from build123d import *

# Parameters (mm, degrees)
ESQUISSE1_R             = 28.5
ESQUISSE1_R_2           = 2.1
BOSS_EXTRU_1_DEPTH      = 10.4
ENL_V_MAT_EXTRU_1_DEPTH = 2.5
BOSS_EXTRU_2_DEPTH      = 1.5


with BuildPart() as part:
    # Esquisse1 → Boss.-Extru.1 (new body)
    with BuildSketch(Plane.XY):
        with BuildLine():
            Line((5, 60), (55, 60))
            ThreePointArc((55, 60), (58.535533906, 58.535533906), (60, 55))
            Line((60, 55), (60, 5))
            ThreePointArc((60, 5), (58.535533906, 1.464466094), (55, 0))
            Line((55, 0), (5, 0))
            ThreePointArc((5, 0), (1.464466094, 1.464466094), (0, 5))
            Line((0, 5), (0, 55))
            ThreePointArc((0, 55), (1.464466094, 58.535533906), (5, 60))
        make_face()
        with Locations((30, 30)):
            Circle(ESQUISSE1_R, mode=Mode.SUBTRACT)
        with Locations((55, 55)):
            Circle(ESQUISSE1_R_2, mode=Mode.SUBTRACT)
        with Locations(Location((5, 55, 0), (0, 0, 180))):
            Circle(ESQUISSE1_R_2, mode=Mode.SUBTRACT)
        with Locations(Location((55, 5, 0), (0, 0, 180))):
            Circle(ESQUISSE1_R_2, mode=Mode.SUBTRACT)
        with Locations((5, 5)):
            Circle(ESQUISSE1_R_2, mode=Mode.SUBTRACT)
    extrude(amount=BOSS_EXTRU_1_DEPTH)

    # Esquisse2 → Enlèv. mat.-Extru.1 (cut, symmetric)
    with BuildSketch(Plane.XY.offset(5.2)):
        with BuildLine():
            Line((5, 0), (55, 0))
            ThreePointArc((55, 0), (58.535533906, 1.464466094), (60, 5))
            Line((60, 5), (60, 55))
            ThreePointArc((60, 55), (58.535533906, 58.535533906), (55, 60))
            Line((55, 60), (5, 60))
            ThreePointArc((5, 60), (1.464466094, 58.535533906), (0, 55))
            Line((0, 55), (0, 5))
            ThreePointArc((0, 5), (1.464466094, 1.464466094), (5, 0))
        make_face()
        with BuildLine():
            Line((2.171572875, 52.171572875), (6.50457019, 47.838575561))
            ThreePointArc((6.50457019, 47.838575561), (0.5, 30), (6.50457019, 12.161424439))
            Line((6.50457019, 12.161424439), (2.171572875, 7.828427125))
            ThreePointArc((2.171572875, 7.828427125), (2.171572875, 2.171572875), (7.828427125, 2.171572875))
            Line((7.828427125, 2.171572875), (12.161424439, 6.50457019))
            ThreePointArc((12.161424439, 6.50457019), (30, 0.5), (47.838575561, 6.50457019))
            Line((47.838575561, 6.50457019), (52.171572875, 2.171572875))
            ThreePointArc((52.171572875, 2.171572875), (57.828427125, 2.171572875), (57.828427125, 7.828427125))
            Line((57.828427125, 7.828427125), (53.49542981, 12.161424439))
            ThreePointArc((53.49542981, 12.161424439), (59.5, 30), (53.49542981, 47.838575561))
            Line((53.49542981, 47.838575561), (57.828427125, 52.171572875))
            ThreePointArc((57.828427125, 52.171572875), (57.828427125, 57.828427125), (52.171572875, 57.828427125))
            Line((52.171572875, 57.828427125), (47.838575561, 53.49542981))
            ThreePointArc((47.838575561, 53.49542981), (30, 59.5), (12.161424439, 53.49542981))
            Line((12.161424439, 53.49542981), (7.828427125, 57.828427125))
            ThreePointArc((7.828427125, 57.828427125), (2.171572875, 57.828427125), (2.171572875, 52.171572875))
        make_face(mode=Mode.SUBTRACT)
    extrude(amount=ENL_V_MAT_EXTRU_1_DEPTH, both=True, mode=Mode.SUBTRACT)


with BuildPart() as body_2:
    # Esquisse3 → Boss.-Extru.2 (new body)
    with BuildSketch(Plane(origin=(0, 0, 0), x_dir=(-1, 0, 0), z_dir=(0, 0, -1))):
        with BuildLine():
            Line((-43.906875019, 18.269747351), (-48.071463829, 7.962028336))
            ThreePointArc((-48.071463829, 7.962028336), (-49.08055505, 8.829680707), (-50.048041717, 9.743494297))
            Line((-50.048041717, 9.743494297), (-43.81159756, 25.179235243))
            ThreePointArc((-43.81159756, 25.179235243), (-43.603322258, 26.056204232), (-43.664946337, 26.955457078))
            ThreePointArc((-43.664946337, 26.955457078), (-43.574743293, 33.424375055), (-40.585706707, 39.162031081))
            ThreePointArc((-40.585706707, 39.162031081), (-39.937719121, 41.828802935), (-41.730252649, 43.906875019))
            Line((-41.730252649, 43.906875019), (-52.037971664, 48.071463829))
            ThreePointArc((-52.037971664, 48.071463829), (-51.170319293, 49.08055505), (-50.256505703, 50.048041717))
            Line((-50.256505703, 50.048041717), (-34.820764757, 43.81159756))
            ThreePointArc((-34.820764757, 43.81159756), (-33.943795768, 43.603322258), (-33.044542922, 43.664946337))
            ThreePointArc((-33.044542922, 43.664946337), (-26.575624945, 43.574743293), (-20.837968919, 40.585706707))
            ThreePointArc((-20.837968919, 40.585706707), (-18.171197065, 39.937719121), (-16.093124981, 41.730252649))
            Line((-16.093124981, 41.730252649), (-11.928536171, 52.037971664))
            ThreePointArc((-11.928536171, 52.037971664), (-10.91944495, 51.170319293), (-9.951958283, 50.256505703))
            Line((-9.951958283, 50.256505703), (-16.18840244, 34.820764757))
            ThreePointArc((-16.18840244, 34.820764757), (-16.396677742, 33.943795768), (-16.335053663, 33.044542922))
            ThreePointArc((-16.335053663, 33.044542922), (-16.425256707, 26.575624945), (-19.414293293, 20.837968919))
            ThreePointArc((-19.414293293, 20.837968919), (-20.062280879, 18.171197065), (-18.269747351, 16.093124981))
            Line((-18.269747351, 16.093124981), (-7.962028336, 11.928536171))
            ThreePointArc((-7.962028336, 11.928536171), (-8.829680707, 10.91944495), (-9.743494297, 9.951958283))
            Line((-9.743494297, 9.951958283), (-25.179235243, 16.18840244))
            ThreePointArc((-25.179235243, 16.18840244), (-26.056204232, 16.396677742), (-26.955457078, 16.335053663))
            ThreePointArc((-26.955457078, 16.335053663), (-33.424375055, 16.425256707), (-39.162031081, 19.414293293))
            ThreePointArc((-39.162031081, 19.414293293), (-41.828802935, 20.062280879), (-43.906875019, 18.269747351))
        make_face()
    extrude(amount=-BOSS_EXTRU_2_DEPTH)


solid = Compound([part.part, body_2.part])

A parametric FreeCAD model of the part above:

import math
import FreeCAD as App
import Part
import Sketcher
from FreeCAD import Vector
Q = App.Units.Quantity

doc = App.newDocument("Part")
body = doc.addObject("PartDesign::Body", "Body")

sketch1 = body.newObject("Sketcher::SketchObject", "Sketch")
sketch1.AttachmentSupport = (doc.getObject("XY_Plane"), [""])
sketch1.MapMode = "FlatFace"
sketch1.addGeometry([
    Part.LineSegment(Vector(55, 60, 0), Vector(5, 60, 0)),
    Part.ArcOfCircle(Part.Circle(Vector(5, 55, 0), Vector(0, 0, 1), 5), math.radians(90), math.radians(180)),
    Part.LineSegment(Vector(0, 55, 0), Vector(0, 5, 0)),
    Part.ArcOfCircle(Part.Circle(Vector(5, 5, 0), Vector(0, 0, 1), 5), math.radians(180), math.radians(270)),
    Part.LineSegment(Vector(5, 0, 0), Vector(55, 0, 0)),
    Part.ArcOfCircle(Part.Circle(Vector(55, 5, 0), Vector(0, 0, 1), 5), math.radians(-90), math.radians(0)),
    Part.LineSegment(Vector(60, 5, 0), Vector(60, 55, 0)),
    Part.ArcOfCircle(Part.Circle(Vector(55, 55, 0), Vector(0, 0, 1), 5), math.radians(0), math.radians(90)),
    Part.Circle(Vector(55, 5, 0), Vector(0, 0, 1), 2.1),
    Part.Circle(Vector(5, 5, 0), Vector(0, 0, 1), 2.1),
    Part.Circle(Vector(55, 55, 0), Vector(0, 0, 1), 2.1),
    Part.Circle(Vector(30, 30, 0), Vector(0, 0, 1), 28.5),
    Part.Circle(Vector(5, 55, 0), Vector(0, 0, 1), 2.1),
], False)
sketch1.addConstraint([
    Sketcher.Constraint("Tangent", 0, 2, 1, 1),
    Sketcher.Constraint("Tangent", 1, 2, 2, 1),
    Sketcher.Constraint("Tangent", 2, 2, 3, 1),
    Sketcher.Constraint("Tangent", 3, 2, 4, 1),
    Sketcher.Constraint("Tangent", 4, 2, 5, 1),
    Sketcher.Constraint("Tangent", 5, 2, 6, 1),
    Sketcher.Constraint("Tangent", 6, 2, 7, 1),
    Sketcher.Constraint("Tangent", 7, 2, 0, 1),
    Sketcher.Constraint("Horizontal", 0),
    Sketcher.Constraint("Vertical", 2),
    Sketcher.Constraint("Horizontal", 4),
    Sketcher.Constraint("Vertical", 6),
    Sketcher.Constraint("Coincident", 8, 3, 5, 3),
    Sketcher.Constraint("Coincident", 9, 3, 3, 3),
    Sketcher.Constraint("Coincident", 10, 3, 7, 3),
    Sketcher.Constraint("Coincident", 12, 3, 1, 3),
    Sketcher.Constraint("Equal", 1, 3),
    Sketcher.Constraint("Equal", 3, 5),
    Sketcher.Constraint("Equal", 5, 7),
    Sketcher.Constraint("Equal", 8, 9),
    Sketcher.Constraint("Equal", 9, 10),
    Sketcher.Constraint("Equal", 10, 12),
    Sketcher.Constraint("PointOnObject", 1, 2, -2),
    Sketcher.Constraint("PointOnObject", 3, 2, -1),
    Sketcher.Constraint("Equal", 4, 2),
    Sketcher.Constraint("Diameter", 11, 57.0),
    Sketcher.Constraint("Radius", 1, 5.0),
    Sketcher.Constraint("Diameter", 8, 4.2),
    Sketcher.Constraint("DistanceX", 0, 2, 0, 1, 50.0),
    Sketcher.Constraint("DistanceX", -1, 1, 11, 3, 30.0),
    Sketcher.Constraint("DistanceY", -1, 1, 11, 3, 30.0),
])
pad1 = body.newObject("PartDesign::Pad", "Pad")
pad1.Profile = sketch1
pad1.Length = 10.4

sketch2 = body.newObject("Sketcher::SketchObject", "Sketch001")
sketch2.AttachmentSupport = (doc.getObject("XY_Plane"), [""])
sketch2.MapMode = "FlatFace"
sketch2.AttachmentOffset = App.Placement(Vector(0, 0, 5.2), App.Rotation())
sketch2.addGeometry([
    Part.LineSegment(Vector(5, 0, 0), Vector(55, 0, 0)),
    Part.ArcOfCircle(Part.Circle(Vector(55, 5, 0), Vector(0, 0, 1), 5), math.radians(-90), math.radians(0)),
    Part.LineSegment(Vector(60, 5, 0), Vector(60, 55, 0)),
    Part.ArcOfCircle(Part.Circle(Vector(55, 55, 0), Vector(0, 0, 1), 5), math.radians(0), math.radians(90)),
    Part.LineSegment(Vector(55, 60, 0), Vector(5, 60, 0)),
    Part.ArcOfCircle(Part.Circle(Vector(5, 55, 0), Vector(0, 0, 1), 5), math.radians(90), math.radians(180)),
    Part.LineSegment(Vector(0, 55, 0), Vector(0, 5, 0)),
    Part.ArcOfCircle(Part.Circle(Vector(5, 5, 0), Vector(0, 0, 1), 5), math.radians(180), math.radians(270)),
    Part.LineSegment(Vector(6.5, 47.8, 0), Vector(2.2, 52.2, 0)),
    Part.ArcOfCircle(Part.Circle(Vector(5, 55, 0), Vector(0, 0, 1), 4), math.radians(45), math.radians(225)),
    Part.LineSegment(Vector(7.8, 57.8, 0), Vector(12.2, 53.5, 0)),
    Part.ArcOfCircle(Part.Circle(Vector(30, 30, 0), Vector(0, 0, 1), 29.5), math.radians(53), math.radians(127)),
    Part.LineSegment(Vector(47.8, 53.5, 0), Vector(52.2, 57.8, 0)),
    Part.ArcOfCircle(Part.Circle(Vector(55, 55, 0), Vector(0, 0, 1), 4), math.radians(-45), math.radians(135)),
    Part.LineSegment(Vector(57.8, 52.2, 0), Vector(53.5, 47.8, 0)),
    Part.ArcOfCircle(Part.Circle(Vector(30, 30, 0), Vector(0, 0, 1), 29.5), math.radians(-37), math.radians(37)),
    Part.LineSegment(Vector(53.5, 12.2, 0), Vector(57.8, 7.8, 0)),
    Part.ArcOfCircle(Part.Circle(Vector(55, 5, 0), Vector(0, 0, 1), 4), math.radians(-135), math.radians(45)),
    Part.LineSegment(Vector(52.2, 2.2, 0), Vector(47.8, 6.5, 0)),
    Part.ArcOfCircle(Part.Circle(Vector(30, 30, 0), Vector(0, 0, 1), 29.5), math.radians(-127), math.radians(-53)),
    Part.LineSegment(Vector(12.2, 6.5, 0), Vector(7.8, 2.2, 0)),
    Part.ArcOfCircle(Part.Circle(Vector(5, 5, 0), Vector(0, 0, 1), 4), math.radians(135), math.radians(315)),
    Part.LineSegment(Vector(2.2, 7.8, 0), Vector(6.5, 12.2, 0)),
    Part.ArcOfCircle(Part.Circle(Vector(30, 30, 0), Vector(0, 0, 1), 29.5), math.radians(143), math.radians(217)),
], False)
sketch2.addConstraint([
    Sketcher.Constraint("Tangent", 0, 2, 1, 1),
    Sketcher.Constraint("Tangent", 1, 2, 2, 1),
    Sketcher.Constraint("Tangent", 2, 2, 3, 1),
    Sketcher.Constraint("Tangent", 3, 2, 4, 1),
    Sketcher.Constraint("Tangent", 4, 2, 5, 1),
    Sketcher.Constraint("Tangent", 5, 2, 6, 1),
    Sketcher.Constraint("Tangent", 6, 2, 7, 1),
    Sketcher.Constraint("Tangent", 7, 2, 0, 1),
    Sketcher.Constraint("Tangent", 8, 2, 9, 2),
    Sketcher.Constraint("Tangent", 9, 1, 10, 1),
    Sketcher.Constraint("Coincident", 10, 2, 11, 2),
    Sketcher.Constraint("Coincident", 11, 1, 12, 1),
    Sketcher.Constraint("Tangent", 12, 2, 13, 2),
    Sketcher.Constraint("Tangent", 13, 1, 14, 1),
    Sketcher.Constraint("Coincident", 14, 2, 15, 2),
    Sketcher.Constraint("Coincident", 15, 1, 16, 1),
    Sketcher.Constraint("Tangent", 16, 2, 17, 2),
    Sketcher.Constraint("Tangent", 17, 1, 18, 1),
    Sketcher.Constraint("Coincident", 18, 2, 19, 2),
    Sketcher.Constraint("Coincident", 19, 1, 20, 1),
    Sketcher.Constraint("Tangent", 20, 2, 21, 2),
    Sketcher.Constraint("Tangent", 21, 1, 22, 1),
    Sketcher.Constraint("Coincident", 22, 2, 23, 2),
    Sketcher.Constraint("Coincident", 23, 1, 8, 1),
    Sketcher.Constraint("Horizontal", 0),
    Sketcher.Constraint("Vertical", 2),
    Sketcher.Constraint("Horizontal", 4),
    Sketcher.Constraint("Vertical", 6),
    Sketcher.Constraint("Coincident", 9, 3, 5, 3),
    Sketcher.Constraint("Coincident", 13, 3, 3, 3),
    Sketcher.Constraint("Coincident", 15, 3, 11, 3),
    Sketcher.Constraint("Coincident", 17, 3, 1, 3),
    Sketcher.Constraint("Coincident", 19, 3, 11, 3),
    Sketcher.Constraint("Coincident", 21, 3, 7, 3),
    Sketcher.Constraint("Coincident", 23, 3, 11, 3),
    Sketcher.Constraint("Equal", 1, 3),
    Sketcher.Constraint("Equal", 3, 5),
    Sketcher.Constraint("Equal", 5, 7),
    Sketcher.Constraint("Equal", 9, 13),
    Sketcher.Constraint("Equal", 11, 15),
    Sketcher.Constraint("Equal", 13, 17),
    Sketcher.Constraint("Equal", 15, 19),
    Sketcher.Constraint("Equal", 17, 21),
    Sketcher.Constraint("Equal", 19, 23),
    Sketcher.Constraint("PointOnObject", 0, 2, -1),
    Sketcher.Constraint("PointOnObject", 5, 2, -2),
    Sketcher.Constraint("Parallel", 8, 10),
    Sketcher.Constraint("Perpendicular", 10, 12),
    Sketcher.Constraint("Parallel", 12, 14),
    Sketcher.Constraint("Perpendicular", 14, 16),
    Sketcher.Constraint("Parallel", 16, 18),
    Sketcher.Constraint("Perpendicular", 18, 20),
    Sketcher.Constraint("Parallel", 20, 22),
    Sketcher.Constraint("Horizontal", 10, 2, 11, 1),
    Sketcher.Constraint("Horizontal", 9, 1, 12, 2),
    Sketcher.Constraint("Vertical", 14, 2, 15, 1),
    Sketcher.Constraint("Equal", 4, 2),
    Sketcher.Constraint("Radius", 1, 5.0),
    Sketcher.Constraint("Radius", 9, 4.0),
    Sketcher.Constraint("Radius", 11, 29.5),
    Sketcher.Constraint("DistanceX", 0, 1, 0, 2, 50.0),
])
pocket1 = body.newObject("PartDesign::Pocket", "Pocket")
pocket1.Profile = sketch2
pocket1.Length = 5
pocket1.Midplane = True
body2 = doc.addObject("PartDesign::Body", "Body001")

sketch3 = body2.newObject("Sketcher::SketchObject", "Sketch002")
sketch3.AttachmentSupport = (doc.getObject("XY_Plane001"), [""])
sketch3.MapMode = "FlatFace"
sketch3.addGeometry([
    Part.LineSegment(Vector(48.1, 8, 0), Vector(43.9, 18.3, 0)),
    Part.ArcOfCircle(Part.Circle(Vector(41.1, 17.1, 0), Vector(0, 0, 1), 3), math.radians(22), math.radians(131)),
    Part.ArcOfCircle(Part.Circle(Vector(30, 30, 0), Vector(0, 0, 1), 14), math.radians(-103), math.radians(-49)),
    Part.ArcOfCircle(Part.Circle(Vector(26.3, 13.4, 0), Vector(0, 0, 1), 3), math.radians(77), math.radians(112)),
    Part.LineSegment(Vector(25.2, 16.2, 0), Vector(9.7, 10, 0)),
    Part.ArcOfCircle(Part.Circle(Vector(30, 30, 0), Vector(0, 0, 1), 28.5), math.radians(-140.65), math.radians(-135.3)),
    Part.LineSegment(Vector(8, 11.9, 0), Vector(18.3, 16.1, 0)),
    Part.ArcOfCircle(Part.Circle(Vector(17.1, 18.9, 0), Vector(0, 0, 1), 3), math.radians(-68), math.radians(41)),
    Part.ArcOfCircle(Part.Circle(Vector(30, 30, 0), Vector(0, 0, 1), 14), math.radians(167), math.radians(221)),
    Part.ArcOfCircle(Part.Circle(Vector(13.4, 33.7, 0), Vector(0, 0, 1), 3), math.radians(-13), math.radians(22)),
    Part.LineSegment(Vector(16.2, 34.8, 0), Vector(10, 50.3, 0)),
    Part.ArcOfCircle(Part.Circle(Vector(30, 30, 0), Vector(0, 0, 1), 28.5), math.radians(129.35), math.radians(134.7)),
    Part.LineSegment(Vector(11.9, 52, 0), Vector(16.1, 41.7, 0)),
    Part.ArcOfCircle(Part.Circle(Vector(18.9, 42.9, 0), Vector(0, 0, 1), 3), math.radians(-158), math.radians(-49)),
    Part.ArcOfCircle(Part.Circle(Vector(30, 30, 0), Vector(0, 0, 1), 14), math.radians(77), math.radians(131)),
    Part.ArcOfCircle(Part.Circle(Vector(33.7, 46.6, 0), Vector(0, 0, 1), 3), math.radians(-103), math.radians(-68)),
    Part.LineSegment(Vector(34.8, 43.8, 0), Vector(50.3, 50, 0)),
    Part.ArcOfCircle(Part.Circle(Vector(30, 30, 0), Vector(0, 0, 1), 28.5), math.radians(39.35), math.radians(44.7)),
    Part.LineSegment(Vector(52, 48.1, 0), Vector(41.7, 43.9, 0)),
    Part.ArcOfCircle(Part.Circle(Vector(42.9, 41.1, 0), Vector(0, 0, 1), 3), math.radians(112), math.radians(221)),
    Part.ArcOfCircle(Part.Circle(Vector(30, 30, 0), Vector(0, 0, 1), 14), math.radians(-13), math.radians(41)),
    Part.ArcOfCircle(Part.Circle(Vector(46.6, 26.3, 0), Vector(0, 0, 1), 3), math.radians(167), math.radians(202)),
    Part.LineSegment(Vector(43.8, 25.2, 0), Vector(50, 9.7, 0)),
    Part.ArcOfCircle(Part.Circle(Vector(30, 30, 0), Vector(0, 0, 1), 28.5), math.radians(-50.65), math.radians(-45.3)),
], False)
sketch3.addConstraint([
    Sketcher.Constraint("Tangent", 0, 2, 1, 1),
    Sketcher.Constraint("Tangent", 1, 2, 2, 2),
    Sketcher.Constraint("Tangent", 2, 1, 3, 1),
    Sketcher.Constraint("Tangent", 3, 2, 4, 1),
    Sketcher.Constraint("Coincident", 4, 2, 5, 2),
    Sketcher.Constraint("Coincident", 5, 1, 6, 1),
    Sketcher.Constraint("Tangent", 6, 2, 7, 1),
    Sketcher.Constraint("Tangent", 7, 2, 8, 2),
    Sketcher.Constraint("Tangent", 8, 1, 9, 1),
    Sketcher.Constraint("Tangent", 9, 2, 10, 1),
    Sketcher.Constraint("Coincident", 10, 2, 11, 2),
    Sketcher.Constraint("Coincident", 11, 1, 12, 1),
    Sketcher.Constraint("Tangent", 12, 2, 13, 1),
    Sketcher.Constraint("Tangent", 13, 2, 14, 2),
    Sketcher.Constraint("Tangent", 14, 1, 15, 1),
    Sketcher.Constraint("Tangent", 15, 2, 16, 1),
    Sketcher.Constraint("Coincident", 16, 2, 17, 2),
    Sketcher.Constraint("Coincident", 17, 1, 18, 1),
    Sketcher.Constraint("Tangent", 18, 2, 19, 1),
    Sketcher.Constraint("Tangent", 19, 2, 20, 2),
    Sketcher.Constraint("Tangent", 20, 1, 21, 1),
    Sketcher.Constraint("Tangent", 21, 2, 22, 1),
    Sketcher.Constraint("Coincident", 22, 2, 23, 2),
    Sketcher.Constraint("Coincident", 23, 1, 0, 1),
    Sketcher.Constraint("Coincident", 5, 3, 2, 3),
    Sketcher.Constraint("Coincident", 8, 3, 2, 3),
    Sketcher.Constraint("Coincident", 11, 3, 2, 3),
    Sketcher.Constraint("Coincident", 14, 3, 2, 3),
    Sketcher.Constraint("Coincident", 17, 3, 2, 3),
    Sketcher.Constraint("Coincident", 20, 3, 2, 3),
    Sketcher.Constraint("Coincident", 23, 3, 2, 3),
    Sketcher.Constraint("Equal", 1, 3),
    Sketcher.Constraint("Equal", 3, 7),
    Sketcher.Constraint("Equal", 2, 8),
    Sketcher.Constraint("Equal", 7, 9),
    Sketcher.Constraint("Equal", 5, 11),
    Sketcher.Constraint("Equal", 9, 13),
    Sketcher.Constraint("Equal", 8, 14),
    Sketcher.Constraint("Equal", 13, 15),
    Sketcher.Constraint("Equal", 11, 17),
    Sketcher.Constraint("Equal", 15, 19),
    Sketcher.Constraint("Equal", 14, 20),
    Sketcher.Constraint("Equal", 19, 21),
    Sketcher.Constraint("Equal", 17, 23),
    Sketcher.Constraint("Perpendicular", 0, 4),
    Sketcher.Constraint("Parallel", 4, 6),
    Sketcher.Constraint("Perpendicular", 6, 10),
    Sketcher.Constraint("Parallel", 10, 12),
    Sketcher.Constraint("Perpendicular", 12, 16),
    Sketcher.Constraint("Parallel", 16, 18),
    Sketcher.Constraint("Perpendicular", 18, 22),
    Sketcher.Constraint("Equal", 0, 6),
    Sketcher.Constraint("Equal", 4, 10),
    Sketcher.Constraint("Equal", 6, 12),
    Sketcher.Constraint("Equal", 10, 16),
    Sketcher.Constraint("Equal", 12, 18),
    Sketcher.Constraint("Equal", 16, 22),
    Sketcher.Constraint("Radius", 1, 3.0),
    Sketcher.Constraint("Radius", 2, 14.0),
    Sketcher.Constraint("Radius", 5, 28.5),
    Sketcher.Constraint("Angle", 0, Q("112 deg")),
    Sketcher.Constraint("DistanceX", -1, 1, 2, 3, 30.0),
    Sketcher.Constraint("DistanceY", -1, 1, 2, 3, 30.0),
    Sketcher.Constraint("DistanceY", 22, 2, 1, 2, 9.670799),
    Sketcher.Constraint("DistanceY", -1, 1, 3, 3, 13.406851),
])
pad2 = body2.newObject("PartDesign::Pad", "Pad001")
pad2.Profile = sketch3
pad2.Length = 1.5

doc.recompute()
